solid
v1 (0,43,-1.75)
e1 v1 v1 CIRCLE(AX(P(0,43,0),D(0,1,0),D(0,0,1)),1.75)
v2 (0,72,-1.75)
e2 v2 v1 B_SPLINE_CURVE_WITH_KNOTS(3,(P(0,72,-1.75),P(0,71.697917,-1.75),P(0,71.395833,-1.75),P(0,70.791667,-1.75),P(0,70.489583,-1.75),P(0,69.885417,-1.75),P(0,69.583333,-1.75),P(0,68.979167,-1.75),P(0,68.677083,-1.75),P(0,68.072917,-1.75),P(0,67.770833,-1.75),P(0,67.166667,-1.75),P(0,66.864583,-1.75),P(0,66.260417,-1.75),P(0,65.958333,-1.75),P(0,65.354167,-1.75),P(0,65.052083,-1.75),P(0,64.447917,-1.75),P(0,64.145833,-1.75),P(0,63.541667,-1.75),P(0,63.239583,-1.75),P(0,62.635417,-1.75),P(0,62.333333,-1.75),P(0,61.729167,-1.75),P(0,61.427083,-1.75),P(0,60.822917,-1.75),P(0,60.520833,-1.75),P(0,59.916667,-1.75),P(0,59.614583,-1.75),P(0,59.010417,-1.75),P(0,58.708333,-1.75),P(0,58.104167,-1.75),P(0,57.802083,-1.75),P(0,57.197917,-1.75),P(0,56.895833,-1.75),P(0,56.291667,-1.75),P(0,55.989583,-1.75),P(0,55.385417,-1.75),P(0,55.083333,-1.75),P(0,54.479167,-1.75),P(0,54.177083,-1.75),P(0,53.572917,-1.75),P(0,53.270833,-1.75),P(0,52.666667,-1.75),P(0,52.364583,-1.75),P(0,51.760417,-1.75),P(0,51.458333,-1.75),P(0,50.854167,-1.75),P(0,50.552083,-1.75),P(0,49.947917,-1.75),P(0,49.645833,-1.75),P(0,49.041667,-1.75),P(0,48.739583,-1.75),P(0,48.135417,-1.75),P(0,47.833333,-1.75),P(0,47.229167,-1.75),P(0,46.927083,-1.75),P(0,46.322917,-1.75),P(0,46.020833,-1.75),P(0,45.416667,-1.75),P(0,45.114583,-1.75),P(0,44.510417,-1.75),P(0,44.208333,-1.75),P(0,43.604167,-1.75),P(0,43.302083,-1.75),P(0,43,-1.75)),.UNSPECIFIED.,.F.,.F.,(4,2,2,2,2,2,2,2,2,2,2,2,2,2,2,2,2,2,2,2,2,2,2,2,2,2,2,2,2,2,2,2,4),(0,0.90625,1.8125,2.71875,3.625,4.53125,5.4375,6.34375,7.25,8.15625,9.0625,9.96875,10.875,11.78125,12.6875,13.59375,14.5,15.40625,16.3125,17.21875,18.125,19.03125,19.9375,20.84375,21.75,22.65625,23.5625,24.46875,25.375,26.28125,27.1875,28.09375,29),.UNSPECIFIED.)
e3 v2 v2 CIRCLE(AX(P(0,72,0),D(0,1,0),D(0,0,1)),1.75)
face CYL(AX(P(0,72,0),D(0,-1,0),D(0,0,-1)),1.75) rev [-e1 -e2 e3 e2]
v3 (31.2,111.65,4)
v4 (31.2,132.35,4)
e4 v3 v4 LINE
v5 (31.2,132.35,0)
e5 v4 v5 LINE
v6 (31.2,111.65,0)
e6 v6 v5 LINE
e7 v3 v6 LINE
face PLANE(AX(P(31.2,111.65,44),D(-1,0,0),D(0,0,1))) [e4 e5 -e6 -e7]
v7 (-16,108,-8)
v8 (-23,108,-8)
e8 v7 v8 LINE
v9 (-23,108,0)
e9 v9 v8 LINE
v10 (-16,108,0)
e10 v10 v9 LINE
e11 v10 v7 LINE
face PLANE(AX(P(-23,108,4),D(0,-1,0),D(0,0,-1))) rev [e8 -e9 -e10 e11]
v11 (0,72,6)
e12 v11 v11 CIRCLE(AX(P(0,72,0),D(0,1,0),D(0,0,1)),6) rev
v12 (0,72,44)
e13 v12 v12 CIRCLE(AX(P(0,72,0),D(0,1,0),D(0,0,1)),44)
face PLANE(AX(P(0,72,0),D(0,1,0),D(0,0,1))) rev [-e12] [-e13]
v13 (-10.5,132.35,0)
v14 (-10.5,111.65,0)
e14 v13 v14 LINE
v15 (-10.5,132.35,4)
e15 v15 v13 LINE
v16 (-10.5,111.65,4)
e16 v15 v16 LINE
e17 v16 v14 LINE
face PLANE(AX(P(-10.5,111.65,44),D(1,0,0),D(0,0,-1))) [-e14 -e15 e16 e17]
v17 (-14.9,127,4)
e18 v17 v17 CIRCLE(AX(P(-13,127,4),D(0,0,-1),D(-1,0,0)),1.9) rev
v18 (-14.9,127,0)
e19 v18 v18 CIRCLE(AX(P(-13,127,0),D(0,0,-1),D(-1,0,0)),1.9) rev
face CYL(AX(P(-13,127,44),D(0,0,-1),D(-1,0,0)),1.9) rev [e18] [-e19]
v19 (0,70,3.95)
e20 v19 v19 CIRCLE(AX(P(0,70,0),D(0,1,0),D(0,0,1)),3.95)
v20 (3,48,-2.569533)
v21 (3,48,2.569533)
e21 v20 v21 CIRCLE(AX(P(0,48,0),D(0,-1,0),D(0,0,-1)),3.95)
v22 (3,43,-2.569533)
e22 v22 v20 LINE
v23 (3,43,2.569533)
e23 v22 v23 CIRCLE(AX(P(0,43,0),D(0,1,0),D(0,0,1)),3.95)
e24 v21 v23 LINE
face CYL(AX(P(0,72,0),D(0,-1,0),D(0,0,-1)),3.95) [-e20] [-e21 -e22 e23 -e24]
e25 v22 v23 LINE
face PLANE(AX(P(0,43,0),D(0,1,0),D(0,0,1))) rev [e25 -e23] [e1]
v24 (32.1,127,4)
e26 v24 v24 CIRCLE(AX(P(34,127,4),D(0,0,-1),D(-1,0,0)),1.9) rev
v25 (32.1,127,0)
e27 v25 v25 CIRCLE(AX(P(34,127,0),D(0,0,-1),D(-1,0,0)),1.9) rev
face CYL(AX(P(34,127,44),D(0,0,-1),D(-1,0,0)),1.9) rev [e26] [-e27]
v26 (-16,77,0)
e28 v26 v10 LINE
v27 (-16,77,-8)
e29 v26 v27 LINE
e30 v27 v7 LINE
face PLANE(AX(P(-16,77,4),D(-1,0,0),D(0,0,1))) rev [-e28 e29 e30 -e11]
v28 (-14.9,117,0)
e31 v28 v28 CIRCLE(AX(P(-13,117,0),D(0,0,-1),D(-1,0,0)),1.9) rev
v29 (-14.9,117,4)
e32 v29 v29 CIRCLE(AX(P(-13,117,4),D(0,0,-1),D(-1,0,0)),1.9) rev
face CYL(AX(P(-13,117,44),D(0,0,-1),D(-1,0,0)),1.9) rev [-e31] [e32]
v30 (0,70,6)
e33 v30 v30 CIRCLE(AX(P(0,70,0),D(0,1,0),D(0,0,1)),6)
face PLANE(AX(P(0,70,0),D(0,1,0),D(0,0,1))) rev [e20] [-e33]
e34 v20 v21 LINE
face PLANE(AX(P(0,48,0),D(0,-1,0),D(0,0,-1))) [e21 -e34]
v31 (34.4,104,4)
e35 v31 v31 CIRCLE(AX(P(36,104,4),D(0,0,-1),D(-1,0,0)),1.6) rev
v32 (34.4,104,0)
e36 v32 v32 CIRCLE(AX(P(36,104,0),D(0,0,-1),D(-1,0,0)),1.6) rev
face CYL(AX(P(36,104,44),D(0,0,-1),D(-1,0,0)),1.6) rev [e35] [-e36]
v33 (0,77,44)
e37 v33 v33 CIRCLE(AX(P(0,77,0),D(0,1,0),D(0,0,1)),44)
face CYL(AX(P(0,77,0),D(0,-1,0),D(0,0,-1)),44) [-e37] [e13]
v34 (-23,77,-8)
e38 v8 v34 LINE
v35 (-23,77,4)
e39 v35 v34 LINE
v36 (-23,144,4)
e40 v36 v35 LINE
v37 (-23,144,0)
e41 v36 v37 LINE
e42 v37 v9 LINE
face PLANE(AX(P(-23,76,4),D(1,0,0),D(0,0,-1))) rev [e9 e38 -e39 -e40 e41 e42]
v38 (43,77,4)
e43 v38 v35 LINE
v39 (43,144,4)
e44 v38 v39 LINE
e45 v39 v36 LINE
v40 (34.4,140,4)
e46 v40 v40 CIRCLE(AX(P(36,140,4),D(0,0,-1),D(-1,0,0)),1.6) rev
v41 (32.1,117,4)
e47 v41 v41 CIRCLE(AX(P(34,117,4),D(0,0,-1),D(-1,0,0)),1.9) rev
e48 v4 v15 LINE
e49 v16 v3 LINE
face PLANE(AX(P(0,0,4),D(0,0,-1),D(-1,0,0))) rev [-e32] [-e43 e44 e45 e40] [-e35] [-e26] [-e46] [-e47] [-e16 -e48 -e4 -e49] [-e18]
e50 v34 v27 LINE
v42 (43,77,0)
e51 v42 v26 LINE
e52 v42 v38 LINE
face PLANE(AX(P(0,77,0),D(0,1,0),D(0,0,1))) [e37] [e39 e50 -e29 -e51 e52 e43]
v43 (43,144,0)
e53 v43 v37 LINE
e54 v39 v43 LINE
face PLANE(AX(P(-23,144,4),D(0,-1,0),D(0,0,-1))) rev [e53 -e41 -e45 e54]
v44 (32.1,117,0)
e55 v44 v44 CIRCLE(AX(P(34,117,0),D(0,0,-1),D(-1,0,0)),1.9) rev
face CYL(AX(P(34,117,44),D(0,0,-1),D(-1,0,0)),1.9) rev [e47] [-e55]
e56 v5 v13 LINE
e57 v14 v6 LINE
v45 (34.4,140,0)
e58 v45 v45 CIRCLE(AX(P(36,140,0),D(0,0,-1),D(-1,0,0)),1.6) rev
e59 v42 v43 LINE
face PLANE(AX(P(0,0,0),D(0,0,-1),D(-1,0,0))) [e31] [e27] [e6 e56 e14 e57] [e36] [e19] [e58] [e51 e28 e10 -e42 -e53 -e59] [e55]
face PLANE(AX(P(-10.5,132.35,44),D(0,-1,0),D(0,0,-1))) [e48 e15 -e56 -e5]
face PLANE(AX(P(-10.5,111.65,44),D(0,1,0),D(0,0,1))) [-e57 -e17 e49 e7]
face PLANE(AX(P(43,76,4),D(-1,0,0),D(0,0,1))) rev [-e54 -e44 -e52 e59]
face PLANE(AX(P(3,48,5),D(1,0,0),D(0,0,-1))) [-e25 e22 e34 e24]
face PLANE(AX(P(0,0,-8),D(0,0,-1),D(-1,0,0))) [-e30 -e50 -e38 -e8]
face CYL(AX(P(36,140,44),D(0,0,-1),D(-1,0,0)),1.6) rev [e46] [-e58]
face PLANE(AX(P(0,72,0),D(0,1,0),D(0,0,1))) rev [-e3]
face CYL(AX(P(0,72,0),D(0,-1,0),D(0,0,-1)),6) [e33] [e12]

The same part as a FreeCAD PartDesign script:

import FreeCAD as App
import Part
import Sketcher
from FreeCAD import Vector

doc = App.newDocument("Part")
body = doc.addObject("PartDesign::Body", "Body")

# Sketch on XZ plane
sketch1 = body.newObject("Sketcher::SketchObject", "Sketch")
sketch1.AttachmentSupport = (doc.getObject("XZ_Plane"), [""])
sketch1.MapMode = "FlatFace"
sketch1.AttachmentOffset = App.Placement(Vector(0, 0, -72), App.Rotation())
sketch1.addGeometry(Part.Circle(Vector(0, 0, 0), Vector(0, 0, 1), 44), False)
sketch1.addConstraint([
    Sketcher.Constraint("Coincident", 0, 3, -1, 1),
    Sketcher.Constraint("Diameter", 0, 88.0),
])
pad1 = body.newObject("PartDesign::Pad", "Pad")
pad1.Profile = sketch1
pad1.Length = 5
pad1.Reversed = True

# Sketch on XZ plane
sketch2 = body.newObject("Sketcher::SketchObject", "Sketch001")
sketch2.AttachmentSupport = (doc.getObject("XZ_Plane"), [""])
sketch2.MapMode = "FlatFace"
sketch2.AttachmentOffset = App.Placement(Vector(0, 0, -43), App.Rotation())
sketch2.addGeometry([
    Part.Circle(Vector(0, 0, 0), Vector(0, 0, 1), 3.95),
    Part.Circle(Vector(0, 0, 0), Vector(0, 0, 1), 1.75),
], False)
sketch2.addConstraint([
    Sketcher.Constraint("Coincident", 0, 3, -1, 1),
    Sketcher.Constraint("Coincident", 1, 3, -1, 1),
    Sketcher.Constraint("Diameter", 0, 7.9),
    Sketcher.Constraint("Diameter", 1, 3.5),
])
pad2 = body.newObject("PartDesign::Pad", "Pad001")
pad2.Profile = sketch2
pad2.Length = 29
pad2.Reversed = True

# Sketch on XZ plane
sketch3 = body.newObject("Sketcher::SketchObject", "Sketch002")
sketch3.AttachmentSupport = (doc.getObject("XZ_Plane"), [""])
sketch3.MapMode = "FlatFace"
sketch3.AttachmentOffset = App.Placement(Vector(0, 0, -70), App.Rotation())
sketch3.addGeometry([
    Part.Circle(Vector(0, 0, 0), Vector(0, 0, 1), 6),
    Part.Circle(Vector(0, 0, 0), Vector(0, 0, 1), 1.75),
], False)
sketch3.addConstraint([
    Sketcher.Constraint("Coincident", 0, 3, -1, 1),
    Sketcher.Constraint("Coincident", 1, 3, -1, 1),
    Sketcher.Constraint("Diameter", 0, 12.0),
    Sketcher.Constraint("Diameter", 1, 3.5),
])
pad3 = body.newObject("PartDesign::Pad", "Pad002")
pad3.Profile = sketch3
pad3.Length = 2
pad3.Reversed = True

# Sketch on XZ plane
sketch4 = body.newObject("Sketcher::SketchObject", "Sketch003")
sketch4.AttachmentSupport = (doc.getObject("XZ_Plane"), [""])
sketch4.MapMode = "FlatFace"
sketch4.AttachmentOffset = App.Placement(Vector(0, 0, -43), App.Rotation())
sketch4.addGeometry([
    Part.LineSegment(Vector(3, -5, 0), Vector(3, 5, 0)),
    Part.LineSegment(Vector(3, 5, 0), Vector(6, 5, 0)),
    Part.LineSegment(Vector(6, 5, 0), Vector(6, -5, 0)),
    Part.LineSegment(Vector(6, -5, 0), Vector(3, -5, 0)),
], False)
sketch4.addConstraint([
    Sketcher.Constraint("Coincident", 0, 2, 1, 1),
    Sketcher.Constraint("Coincident", 1, 2, 2, 1),
    Sketcher.Constraint("Coincident", 2, 2, 3, 1),
    Sketcher.Constraint("Coincident", 3, 2, 0, 1),
    Sketcher.Constraint("Vertical", 0),
    Sketcher.Constraint("Horizontal", 1),
    Sketcher.Constraint("Vertical", 2),
    Sketcher.Constraint("Horizontal", 3),
    Sketcher.Constraint("DistanceX", 1, 1, 1, 2, 3.0),
    Sketcher.Constraint("DistanceY", 0, 1, 0, 2, 10.0),
    Sketcher.Constraint("DistanceX", -1, 1, 0, 2, 3.0),
    Sketcher.Constraint("DistanceY", -1, 1, 0, 2, 5.0),
])
pocket1 = body.newObject("PartDesign::Pocket", "Pocket")
pocket1.Profile = sketch4
pocket1.Length = 5

# Sketch on XY plane
sketch5 = body.newObject("Sketcher::SketchObject", "Sketch004")
sketch5.AttachmentSupport = (doc.getObject("XY_Plane"), [""])
sketch5.MapMode = "FlatFace"
sketch5.addGeometry([
    Part.LineSegment(Vector(-23, 144, 0), Vector(-23, 76, 0)),
    Part.LineSegment(Vector(-23, 76, 0), Vector(43, 76, 0)),
    Part.LineSegment(Vector(43, 76, 0), Vector(43, 144, 0)),
    Part.LineSegment(Vector(43, 144, 0), Vector(-23, 144, 0)),
], False)
sketch5.addConstraint([
    Sketcher.Constraint("Coincident", 0, 2, 1, 1),
    Sketcher.Constraint("Coincident", 1, 2, 2, 1),
    Sketcher.Constraint("Coincident", 2, 2, 3, 1),
    Sketcher.Constraint("Coincident", 3, 2, 0, 1),
    Sketcher.Constraint("Vertical", 0),
    Sketcher.Constraint("Horizontal", 1),
    Sketcher.Constraint("Vertical", 2),
    Sketcher.Constraint("Horizontal", 3),
    Sketcher.Constraint("DistanceX", 1, 1, 1, 2, 66.0),
    Sketcher.Constraint("DistanceY", 0, 2, 0, 1, 68.0),
    Sketcher.Constraint("DistanceX", 0, 2, -1, 1, 23.0),
    Sketcher.Constraint("DistanceY", -1, 1, 0, 2, 76.0),
])
pad4 = body.newObject("PartDesign::Pad", "Pad003")
pad4.Profile = sketch5
pad4.Length = 4

# Sketch on XY plane
sketch6 = body.newObject("Sketcher::SketchObject", "Sketch005")
sketch6.AttachmentSupport = (doc.getObject("XY_Plane"), [""])
sketch6.MapMode = "FlatFace"
sketch6.AttachmentOffset = App.Placement(Vector(0, 0, -5), App.Rotation())
sketch6.addGeometry([
    Part.LineSegment(Vector(-10.5, 132.35, 0), Vector(-10.5, 111.65, 0)),
    Part.LineSegment(Vector(-10.5, 111.65, 0), Vector(31.2, 111.65, 0)),
    Part.LineSegment(Vector(31.2, 111.65, 0), Vector(31.2, 132.35, 0)),
    Part.LineSegment(Vector(31.2, 132.35, 0), Vector(-10.5, 132.35, 0)),
], False)
sketch6.addConstraint([
    Sketcher.Constraint("Coincident", 0, 2, 1, 1),
    Sketcher.Constraint("Coincident", 1, 2, 2, 1),
    Sketcher.Constraint("Coincident", 2, 2, 3, 1),
    Sketcher.Constraint("Coincident", 3, 2, 0, 1),
    Sketcher.Constraint("Vertical", 0),
    Sketcher.Constraint("Horizontal", 1),
    Sketcher.Constraint("Vertical", 2),
    Sketcher.Constraint("Horizontal", 3),
    Sketcher.Constraint("DistanceX", 1, 1, 1, 2, 41.7),
    Sketcher.Constraint("DistanceY", 0, 2, 0, 1, 20.7),
    Sketcher.Constraint("DistanceX", 0, 2, -1, 1, 10.5),
    Sketcher.Constraint("DistanceY", -1, 1, 0, 2, 111.65),
])
pocket2 = body.newObject("PartDesign::Pocket", "Pocket001")
pocket2.Profile = sketch6
pocket2.Type = "ThroughAll"
pocket2.Reversed = True

# Sketch on XY plane
sketch7 = body.newObject("Sketcher::SketchObject", "Sketch006")
sketch7.AttachmentSupport = (doc.getObject("XY_Plane"), [""])
sketch7.MapMode = "FlatFace"
sketch7.AttachmentOffset = App.Placement(Vector(0, 0, -50), App.Rotation())
sketch7.addGeometry([
    Part.Circle(Vector(-13, 117, 0), Vector(0, 0, 1), 1.9),
    Part.Circle(Vector(-13, 127, 0), Vector(0, 0, 1), 1.9),
    Part.Circle(Vector(34, 117, 0), Vector(0, 0, 1), 1.9),
    Part.Circle(Vector(34, 127, 0), Vector(0, 0, 1), 1.9),
], False)
sketch7.addConstraint([
    Sketcher.Constraint("Equal", 0, 1),
    Sketcher.Constraint("Equal", 1, 2),
    Sketcher.Constraint("Equal", 2, 3),
    Sketcher.Constraint("Horizontal", 0, 3, 2, 3),
    Sketcher.Constraint("Horizontal", 1, 3, 3, 3),
    Sketcher.Constraint("Vertical", 0, 3, 1, 3),
    Sketcher.Constraint("Vertical", 2, 3, 3, 3),
    Sketcher.Constraint("Diameter", 0, 3.8),
    Sketcher.Constraint("DistanceX", 0, 3, -1, 1, 13.0),
    Sketcher.Constraint("DistanceY", -1, 1, 0, 3, 117.0),
    Sketcher.Constraint("DistanceY", -1, 1, 1, 3, 127.0),
    Sketcher.Constraint("DistanceX", -1, 1, 2, 3, 34.0),
])
pocket3 = body.newObject("PartDesign::Pocket", "Pocket002")
pocket3.Profile = sketch7
pocket3.Type = "ThroughAll"
pocket3.Reversed = True

# Sketch on XY plane
sketch8 = body.newObject("Sketcher::SketchObject", "Sketch007")
sketch8.AttachmentSupport = (doc.getObject("XY_Plane"), [""])
sketch8.MapMode = "FlatFace"
sketch8.AttachmentOffset = App.Placement(Vector(0, 0, -50), App.Rotation())
sketch8.addGeometry([
    Part.Circle(Vector(36, 104, 0), Vector(0, 0, 1), 1.6),
    Part.Circle(Vector(36, 140, 0), Vector(0, 0, 1), 1.6),
], False)
sketch8.addConstraint([
    Sketcher.Constraint("Equal", 0, 1),
    Sketcher.Constraint("Vertical", 0, 3, 1, 3),
    Sketcher.Constraint("Diameter", 0, 3.2),
    Sketcher.Constraint("DistanceX", -1, 1, 0, 3, 36.0),
    Sketcher.Constraint("DistanceY", -1, 1, 0, 3, 104.0),
    Sketcher.Constraint("DistanceY", -1, 1, 1, 3, 140.0),
])
pocket4 = body.newObject("PartDesign::Pocket", "Pocket003")
pocket4.Profile = sketch8
pocket4.Type = "ThroughAll"
pocket4.Reversed = True

# Sketch on XY plane
sketch9 = body.newObject("Sketcher::SketchObject", "Sketch008")
sketch9.AttachmentSupport = (doc.getObject("XY_Plane"), [""])
sketch9.MapMode = "FlatFace"
sketch9.AttachmentOffset = App.Placement(Vector(0, 0, -8), App.Rotation())
sketch9.addGeometry([
    Part.LineSegment(Vector(-23, 108, 0), Vector(-23, 77, 0)),
    Part.LineSegment(Vector(-23, 77, 0), Vector(-16, 77, 0)),
    Part.LineSegment(Vector(-16, 77, 0), Vector(-16, 108, 0)),
    Part.LineSegment(Vector(-16, 108, 0), Vector(-23, 108, 0)),
], False)
sketch9.addConstraint([
    Sketcher.Constraint("Coincident", 0, 2, 1, 1),
    Sketcher.Constraint("Coincident", 1, 2, 2, 1),
    Sketcher.Constraint("Coincident", 2, 2, 3, 1),
    Sketcher.Constraint("Coincident", 3, 2, 0, 1),
    Sketcher.Constraint("Vertical", 0),
    Sketcher.Constraint("Horizontal", 1),
    Sketcher.Constraint("Vertical", 2),
    Sketcher.Constraint("Horizontal", 3),
    Sketcher.Constraint("DistanceX", 1, 1, 1, 2, 7.0),
    Sketcher.Constraint("DistanceY", 0, 2, 0, 1, 31.0),
    Sketcher.Constraint("DistanceX", 0, 2, -1, 1, 23.0),
    Sketcher.Constraint("DistanceY", -1, 1, 0, 2, 77.0),
])
pad5 = body.newObject("PartDesign::Pad", "Pad004")
pad5.Profile = sketch9
pad5.Length = 12

doc.recompute()
